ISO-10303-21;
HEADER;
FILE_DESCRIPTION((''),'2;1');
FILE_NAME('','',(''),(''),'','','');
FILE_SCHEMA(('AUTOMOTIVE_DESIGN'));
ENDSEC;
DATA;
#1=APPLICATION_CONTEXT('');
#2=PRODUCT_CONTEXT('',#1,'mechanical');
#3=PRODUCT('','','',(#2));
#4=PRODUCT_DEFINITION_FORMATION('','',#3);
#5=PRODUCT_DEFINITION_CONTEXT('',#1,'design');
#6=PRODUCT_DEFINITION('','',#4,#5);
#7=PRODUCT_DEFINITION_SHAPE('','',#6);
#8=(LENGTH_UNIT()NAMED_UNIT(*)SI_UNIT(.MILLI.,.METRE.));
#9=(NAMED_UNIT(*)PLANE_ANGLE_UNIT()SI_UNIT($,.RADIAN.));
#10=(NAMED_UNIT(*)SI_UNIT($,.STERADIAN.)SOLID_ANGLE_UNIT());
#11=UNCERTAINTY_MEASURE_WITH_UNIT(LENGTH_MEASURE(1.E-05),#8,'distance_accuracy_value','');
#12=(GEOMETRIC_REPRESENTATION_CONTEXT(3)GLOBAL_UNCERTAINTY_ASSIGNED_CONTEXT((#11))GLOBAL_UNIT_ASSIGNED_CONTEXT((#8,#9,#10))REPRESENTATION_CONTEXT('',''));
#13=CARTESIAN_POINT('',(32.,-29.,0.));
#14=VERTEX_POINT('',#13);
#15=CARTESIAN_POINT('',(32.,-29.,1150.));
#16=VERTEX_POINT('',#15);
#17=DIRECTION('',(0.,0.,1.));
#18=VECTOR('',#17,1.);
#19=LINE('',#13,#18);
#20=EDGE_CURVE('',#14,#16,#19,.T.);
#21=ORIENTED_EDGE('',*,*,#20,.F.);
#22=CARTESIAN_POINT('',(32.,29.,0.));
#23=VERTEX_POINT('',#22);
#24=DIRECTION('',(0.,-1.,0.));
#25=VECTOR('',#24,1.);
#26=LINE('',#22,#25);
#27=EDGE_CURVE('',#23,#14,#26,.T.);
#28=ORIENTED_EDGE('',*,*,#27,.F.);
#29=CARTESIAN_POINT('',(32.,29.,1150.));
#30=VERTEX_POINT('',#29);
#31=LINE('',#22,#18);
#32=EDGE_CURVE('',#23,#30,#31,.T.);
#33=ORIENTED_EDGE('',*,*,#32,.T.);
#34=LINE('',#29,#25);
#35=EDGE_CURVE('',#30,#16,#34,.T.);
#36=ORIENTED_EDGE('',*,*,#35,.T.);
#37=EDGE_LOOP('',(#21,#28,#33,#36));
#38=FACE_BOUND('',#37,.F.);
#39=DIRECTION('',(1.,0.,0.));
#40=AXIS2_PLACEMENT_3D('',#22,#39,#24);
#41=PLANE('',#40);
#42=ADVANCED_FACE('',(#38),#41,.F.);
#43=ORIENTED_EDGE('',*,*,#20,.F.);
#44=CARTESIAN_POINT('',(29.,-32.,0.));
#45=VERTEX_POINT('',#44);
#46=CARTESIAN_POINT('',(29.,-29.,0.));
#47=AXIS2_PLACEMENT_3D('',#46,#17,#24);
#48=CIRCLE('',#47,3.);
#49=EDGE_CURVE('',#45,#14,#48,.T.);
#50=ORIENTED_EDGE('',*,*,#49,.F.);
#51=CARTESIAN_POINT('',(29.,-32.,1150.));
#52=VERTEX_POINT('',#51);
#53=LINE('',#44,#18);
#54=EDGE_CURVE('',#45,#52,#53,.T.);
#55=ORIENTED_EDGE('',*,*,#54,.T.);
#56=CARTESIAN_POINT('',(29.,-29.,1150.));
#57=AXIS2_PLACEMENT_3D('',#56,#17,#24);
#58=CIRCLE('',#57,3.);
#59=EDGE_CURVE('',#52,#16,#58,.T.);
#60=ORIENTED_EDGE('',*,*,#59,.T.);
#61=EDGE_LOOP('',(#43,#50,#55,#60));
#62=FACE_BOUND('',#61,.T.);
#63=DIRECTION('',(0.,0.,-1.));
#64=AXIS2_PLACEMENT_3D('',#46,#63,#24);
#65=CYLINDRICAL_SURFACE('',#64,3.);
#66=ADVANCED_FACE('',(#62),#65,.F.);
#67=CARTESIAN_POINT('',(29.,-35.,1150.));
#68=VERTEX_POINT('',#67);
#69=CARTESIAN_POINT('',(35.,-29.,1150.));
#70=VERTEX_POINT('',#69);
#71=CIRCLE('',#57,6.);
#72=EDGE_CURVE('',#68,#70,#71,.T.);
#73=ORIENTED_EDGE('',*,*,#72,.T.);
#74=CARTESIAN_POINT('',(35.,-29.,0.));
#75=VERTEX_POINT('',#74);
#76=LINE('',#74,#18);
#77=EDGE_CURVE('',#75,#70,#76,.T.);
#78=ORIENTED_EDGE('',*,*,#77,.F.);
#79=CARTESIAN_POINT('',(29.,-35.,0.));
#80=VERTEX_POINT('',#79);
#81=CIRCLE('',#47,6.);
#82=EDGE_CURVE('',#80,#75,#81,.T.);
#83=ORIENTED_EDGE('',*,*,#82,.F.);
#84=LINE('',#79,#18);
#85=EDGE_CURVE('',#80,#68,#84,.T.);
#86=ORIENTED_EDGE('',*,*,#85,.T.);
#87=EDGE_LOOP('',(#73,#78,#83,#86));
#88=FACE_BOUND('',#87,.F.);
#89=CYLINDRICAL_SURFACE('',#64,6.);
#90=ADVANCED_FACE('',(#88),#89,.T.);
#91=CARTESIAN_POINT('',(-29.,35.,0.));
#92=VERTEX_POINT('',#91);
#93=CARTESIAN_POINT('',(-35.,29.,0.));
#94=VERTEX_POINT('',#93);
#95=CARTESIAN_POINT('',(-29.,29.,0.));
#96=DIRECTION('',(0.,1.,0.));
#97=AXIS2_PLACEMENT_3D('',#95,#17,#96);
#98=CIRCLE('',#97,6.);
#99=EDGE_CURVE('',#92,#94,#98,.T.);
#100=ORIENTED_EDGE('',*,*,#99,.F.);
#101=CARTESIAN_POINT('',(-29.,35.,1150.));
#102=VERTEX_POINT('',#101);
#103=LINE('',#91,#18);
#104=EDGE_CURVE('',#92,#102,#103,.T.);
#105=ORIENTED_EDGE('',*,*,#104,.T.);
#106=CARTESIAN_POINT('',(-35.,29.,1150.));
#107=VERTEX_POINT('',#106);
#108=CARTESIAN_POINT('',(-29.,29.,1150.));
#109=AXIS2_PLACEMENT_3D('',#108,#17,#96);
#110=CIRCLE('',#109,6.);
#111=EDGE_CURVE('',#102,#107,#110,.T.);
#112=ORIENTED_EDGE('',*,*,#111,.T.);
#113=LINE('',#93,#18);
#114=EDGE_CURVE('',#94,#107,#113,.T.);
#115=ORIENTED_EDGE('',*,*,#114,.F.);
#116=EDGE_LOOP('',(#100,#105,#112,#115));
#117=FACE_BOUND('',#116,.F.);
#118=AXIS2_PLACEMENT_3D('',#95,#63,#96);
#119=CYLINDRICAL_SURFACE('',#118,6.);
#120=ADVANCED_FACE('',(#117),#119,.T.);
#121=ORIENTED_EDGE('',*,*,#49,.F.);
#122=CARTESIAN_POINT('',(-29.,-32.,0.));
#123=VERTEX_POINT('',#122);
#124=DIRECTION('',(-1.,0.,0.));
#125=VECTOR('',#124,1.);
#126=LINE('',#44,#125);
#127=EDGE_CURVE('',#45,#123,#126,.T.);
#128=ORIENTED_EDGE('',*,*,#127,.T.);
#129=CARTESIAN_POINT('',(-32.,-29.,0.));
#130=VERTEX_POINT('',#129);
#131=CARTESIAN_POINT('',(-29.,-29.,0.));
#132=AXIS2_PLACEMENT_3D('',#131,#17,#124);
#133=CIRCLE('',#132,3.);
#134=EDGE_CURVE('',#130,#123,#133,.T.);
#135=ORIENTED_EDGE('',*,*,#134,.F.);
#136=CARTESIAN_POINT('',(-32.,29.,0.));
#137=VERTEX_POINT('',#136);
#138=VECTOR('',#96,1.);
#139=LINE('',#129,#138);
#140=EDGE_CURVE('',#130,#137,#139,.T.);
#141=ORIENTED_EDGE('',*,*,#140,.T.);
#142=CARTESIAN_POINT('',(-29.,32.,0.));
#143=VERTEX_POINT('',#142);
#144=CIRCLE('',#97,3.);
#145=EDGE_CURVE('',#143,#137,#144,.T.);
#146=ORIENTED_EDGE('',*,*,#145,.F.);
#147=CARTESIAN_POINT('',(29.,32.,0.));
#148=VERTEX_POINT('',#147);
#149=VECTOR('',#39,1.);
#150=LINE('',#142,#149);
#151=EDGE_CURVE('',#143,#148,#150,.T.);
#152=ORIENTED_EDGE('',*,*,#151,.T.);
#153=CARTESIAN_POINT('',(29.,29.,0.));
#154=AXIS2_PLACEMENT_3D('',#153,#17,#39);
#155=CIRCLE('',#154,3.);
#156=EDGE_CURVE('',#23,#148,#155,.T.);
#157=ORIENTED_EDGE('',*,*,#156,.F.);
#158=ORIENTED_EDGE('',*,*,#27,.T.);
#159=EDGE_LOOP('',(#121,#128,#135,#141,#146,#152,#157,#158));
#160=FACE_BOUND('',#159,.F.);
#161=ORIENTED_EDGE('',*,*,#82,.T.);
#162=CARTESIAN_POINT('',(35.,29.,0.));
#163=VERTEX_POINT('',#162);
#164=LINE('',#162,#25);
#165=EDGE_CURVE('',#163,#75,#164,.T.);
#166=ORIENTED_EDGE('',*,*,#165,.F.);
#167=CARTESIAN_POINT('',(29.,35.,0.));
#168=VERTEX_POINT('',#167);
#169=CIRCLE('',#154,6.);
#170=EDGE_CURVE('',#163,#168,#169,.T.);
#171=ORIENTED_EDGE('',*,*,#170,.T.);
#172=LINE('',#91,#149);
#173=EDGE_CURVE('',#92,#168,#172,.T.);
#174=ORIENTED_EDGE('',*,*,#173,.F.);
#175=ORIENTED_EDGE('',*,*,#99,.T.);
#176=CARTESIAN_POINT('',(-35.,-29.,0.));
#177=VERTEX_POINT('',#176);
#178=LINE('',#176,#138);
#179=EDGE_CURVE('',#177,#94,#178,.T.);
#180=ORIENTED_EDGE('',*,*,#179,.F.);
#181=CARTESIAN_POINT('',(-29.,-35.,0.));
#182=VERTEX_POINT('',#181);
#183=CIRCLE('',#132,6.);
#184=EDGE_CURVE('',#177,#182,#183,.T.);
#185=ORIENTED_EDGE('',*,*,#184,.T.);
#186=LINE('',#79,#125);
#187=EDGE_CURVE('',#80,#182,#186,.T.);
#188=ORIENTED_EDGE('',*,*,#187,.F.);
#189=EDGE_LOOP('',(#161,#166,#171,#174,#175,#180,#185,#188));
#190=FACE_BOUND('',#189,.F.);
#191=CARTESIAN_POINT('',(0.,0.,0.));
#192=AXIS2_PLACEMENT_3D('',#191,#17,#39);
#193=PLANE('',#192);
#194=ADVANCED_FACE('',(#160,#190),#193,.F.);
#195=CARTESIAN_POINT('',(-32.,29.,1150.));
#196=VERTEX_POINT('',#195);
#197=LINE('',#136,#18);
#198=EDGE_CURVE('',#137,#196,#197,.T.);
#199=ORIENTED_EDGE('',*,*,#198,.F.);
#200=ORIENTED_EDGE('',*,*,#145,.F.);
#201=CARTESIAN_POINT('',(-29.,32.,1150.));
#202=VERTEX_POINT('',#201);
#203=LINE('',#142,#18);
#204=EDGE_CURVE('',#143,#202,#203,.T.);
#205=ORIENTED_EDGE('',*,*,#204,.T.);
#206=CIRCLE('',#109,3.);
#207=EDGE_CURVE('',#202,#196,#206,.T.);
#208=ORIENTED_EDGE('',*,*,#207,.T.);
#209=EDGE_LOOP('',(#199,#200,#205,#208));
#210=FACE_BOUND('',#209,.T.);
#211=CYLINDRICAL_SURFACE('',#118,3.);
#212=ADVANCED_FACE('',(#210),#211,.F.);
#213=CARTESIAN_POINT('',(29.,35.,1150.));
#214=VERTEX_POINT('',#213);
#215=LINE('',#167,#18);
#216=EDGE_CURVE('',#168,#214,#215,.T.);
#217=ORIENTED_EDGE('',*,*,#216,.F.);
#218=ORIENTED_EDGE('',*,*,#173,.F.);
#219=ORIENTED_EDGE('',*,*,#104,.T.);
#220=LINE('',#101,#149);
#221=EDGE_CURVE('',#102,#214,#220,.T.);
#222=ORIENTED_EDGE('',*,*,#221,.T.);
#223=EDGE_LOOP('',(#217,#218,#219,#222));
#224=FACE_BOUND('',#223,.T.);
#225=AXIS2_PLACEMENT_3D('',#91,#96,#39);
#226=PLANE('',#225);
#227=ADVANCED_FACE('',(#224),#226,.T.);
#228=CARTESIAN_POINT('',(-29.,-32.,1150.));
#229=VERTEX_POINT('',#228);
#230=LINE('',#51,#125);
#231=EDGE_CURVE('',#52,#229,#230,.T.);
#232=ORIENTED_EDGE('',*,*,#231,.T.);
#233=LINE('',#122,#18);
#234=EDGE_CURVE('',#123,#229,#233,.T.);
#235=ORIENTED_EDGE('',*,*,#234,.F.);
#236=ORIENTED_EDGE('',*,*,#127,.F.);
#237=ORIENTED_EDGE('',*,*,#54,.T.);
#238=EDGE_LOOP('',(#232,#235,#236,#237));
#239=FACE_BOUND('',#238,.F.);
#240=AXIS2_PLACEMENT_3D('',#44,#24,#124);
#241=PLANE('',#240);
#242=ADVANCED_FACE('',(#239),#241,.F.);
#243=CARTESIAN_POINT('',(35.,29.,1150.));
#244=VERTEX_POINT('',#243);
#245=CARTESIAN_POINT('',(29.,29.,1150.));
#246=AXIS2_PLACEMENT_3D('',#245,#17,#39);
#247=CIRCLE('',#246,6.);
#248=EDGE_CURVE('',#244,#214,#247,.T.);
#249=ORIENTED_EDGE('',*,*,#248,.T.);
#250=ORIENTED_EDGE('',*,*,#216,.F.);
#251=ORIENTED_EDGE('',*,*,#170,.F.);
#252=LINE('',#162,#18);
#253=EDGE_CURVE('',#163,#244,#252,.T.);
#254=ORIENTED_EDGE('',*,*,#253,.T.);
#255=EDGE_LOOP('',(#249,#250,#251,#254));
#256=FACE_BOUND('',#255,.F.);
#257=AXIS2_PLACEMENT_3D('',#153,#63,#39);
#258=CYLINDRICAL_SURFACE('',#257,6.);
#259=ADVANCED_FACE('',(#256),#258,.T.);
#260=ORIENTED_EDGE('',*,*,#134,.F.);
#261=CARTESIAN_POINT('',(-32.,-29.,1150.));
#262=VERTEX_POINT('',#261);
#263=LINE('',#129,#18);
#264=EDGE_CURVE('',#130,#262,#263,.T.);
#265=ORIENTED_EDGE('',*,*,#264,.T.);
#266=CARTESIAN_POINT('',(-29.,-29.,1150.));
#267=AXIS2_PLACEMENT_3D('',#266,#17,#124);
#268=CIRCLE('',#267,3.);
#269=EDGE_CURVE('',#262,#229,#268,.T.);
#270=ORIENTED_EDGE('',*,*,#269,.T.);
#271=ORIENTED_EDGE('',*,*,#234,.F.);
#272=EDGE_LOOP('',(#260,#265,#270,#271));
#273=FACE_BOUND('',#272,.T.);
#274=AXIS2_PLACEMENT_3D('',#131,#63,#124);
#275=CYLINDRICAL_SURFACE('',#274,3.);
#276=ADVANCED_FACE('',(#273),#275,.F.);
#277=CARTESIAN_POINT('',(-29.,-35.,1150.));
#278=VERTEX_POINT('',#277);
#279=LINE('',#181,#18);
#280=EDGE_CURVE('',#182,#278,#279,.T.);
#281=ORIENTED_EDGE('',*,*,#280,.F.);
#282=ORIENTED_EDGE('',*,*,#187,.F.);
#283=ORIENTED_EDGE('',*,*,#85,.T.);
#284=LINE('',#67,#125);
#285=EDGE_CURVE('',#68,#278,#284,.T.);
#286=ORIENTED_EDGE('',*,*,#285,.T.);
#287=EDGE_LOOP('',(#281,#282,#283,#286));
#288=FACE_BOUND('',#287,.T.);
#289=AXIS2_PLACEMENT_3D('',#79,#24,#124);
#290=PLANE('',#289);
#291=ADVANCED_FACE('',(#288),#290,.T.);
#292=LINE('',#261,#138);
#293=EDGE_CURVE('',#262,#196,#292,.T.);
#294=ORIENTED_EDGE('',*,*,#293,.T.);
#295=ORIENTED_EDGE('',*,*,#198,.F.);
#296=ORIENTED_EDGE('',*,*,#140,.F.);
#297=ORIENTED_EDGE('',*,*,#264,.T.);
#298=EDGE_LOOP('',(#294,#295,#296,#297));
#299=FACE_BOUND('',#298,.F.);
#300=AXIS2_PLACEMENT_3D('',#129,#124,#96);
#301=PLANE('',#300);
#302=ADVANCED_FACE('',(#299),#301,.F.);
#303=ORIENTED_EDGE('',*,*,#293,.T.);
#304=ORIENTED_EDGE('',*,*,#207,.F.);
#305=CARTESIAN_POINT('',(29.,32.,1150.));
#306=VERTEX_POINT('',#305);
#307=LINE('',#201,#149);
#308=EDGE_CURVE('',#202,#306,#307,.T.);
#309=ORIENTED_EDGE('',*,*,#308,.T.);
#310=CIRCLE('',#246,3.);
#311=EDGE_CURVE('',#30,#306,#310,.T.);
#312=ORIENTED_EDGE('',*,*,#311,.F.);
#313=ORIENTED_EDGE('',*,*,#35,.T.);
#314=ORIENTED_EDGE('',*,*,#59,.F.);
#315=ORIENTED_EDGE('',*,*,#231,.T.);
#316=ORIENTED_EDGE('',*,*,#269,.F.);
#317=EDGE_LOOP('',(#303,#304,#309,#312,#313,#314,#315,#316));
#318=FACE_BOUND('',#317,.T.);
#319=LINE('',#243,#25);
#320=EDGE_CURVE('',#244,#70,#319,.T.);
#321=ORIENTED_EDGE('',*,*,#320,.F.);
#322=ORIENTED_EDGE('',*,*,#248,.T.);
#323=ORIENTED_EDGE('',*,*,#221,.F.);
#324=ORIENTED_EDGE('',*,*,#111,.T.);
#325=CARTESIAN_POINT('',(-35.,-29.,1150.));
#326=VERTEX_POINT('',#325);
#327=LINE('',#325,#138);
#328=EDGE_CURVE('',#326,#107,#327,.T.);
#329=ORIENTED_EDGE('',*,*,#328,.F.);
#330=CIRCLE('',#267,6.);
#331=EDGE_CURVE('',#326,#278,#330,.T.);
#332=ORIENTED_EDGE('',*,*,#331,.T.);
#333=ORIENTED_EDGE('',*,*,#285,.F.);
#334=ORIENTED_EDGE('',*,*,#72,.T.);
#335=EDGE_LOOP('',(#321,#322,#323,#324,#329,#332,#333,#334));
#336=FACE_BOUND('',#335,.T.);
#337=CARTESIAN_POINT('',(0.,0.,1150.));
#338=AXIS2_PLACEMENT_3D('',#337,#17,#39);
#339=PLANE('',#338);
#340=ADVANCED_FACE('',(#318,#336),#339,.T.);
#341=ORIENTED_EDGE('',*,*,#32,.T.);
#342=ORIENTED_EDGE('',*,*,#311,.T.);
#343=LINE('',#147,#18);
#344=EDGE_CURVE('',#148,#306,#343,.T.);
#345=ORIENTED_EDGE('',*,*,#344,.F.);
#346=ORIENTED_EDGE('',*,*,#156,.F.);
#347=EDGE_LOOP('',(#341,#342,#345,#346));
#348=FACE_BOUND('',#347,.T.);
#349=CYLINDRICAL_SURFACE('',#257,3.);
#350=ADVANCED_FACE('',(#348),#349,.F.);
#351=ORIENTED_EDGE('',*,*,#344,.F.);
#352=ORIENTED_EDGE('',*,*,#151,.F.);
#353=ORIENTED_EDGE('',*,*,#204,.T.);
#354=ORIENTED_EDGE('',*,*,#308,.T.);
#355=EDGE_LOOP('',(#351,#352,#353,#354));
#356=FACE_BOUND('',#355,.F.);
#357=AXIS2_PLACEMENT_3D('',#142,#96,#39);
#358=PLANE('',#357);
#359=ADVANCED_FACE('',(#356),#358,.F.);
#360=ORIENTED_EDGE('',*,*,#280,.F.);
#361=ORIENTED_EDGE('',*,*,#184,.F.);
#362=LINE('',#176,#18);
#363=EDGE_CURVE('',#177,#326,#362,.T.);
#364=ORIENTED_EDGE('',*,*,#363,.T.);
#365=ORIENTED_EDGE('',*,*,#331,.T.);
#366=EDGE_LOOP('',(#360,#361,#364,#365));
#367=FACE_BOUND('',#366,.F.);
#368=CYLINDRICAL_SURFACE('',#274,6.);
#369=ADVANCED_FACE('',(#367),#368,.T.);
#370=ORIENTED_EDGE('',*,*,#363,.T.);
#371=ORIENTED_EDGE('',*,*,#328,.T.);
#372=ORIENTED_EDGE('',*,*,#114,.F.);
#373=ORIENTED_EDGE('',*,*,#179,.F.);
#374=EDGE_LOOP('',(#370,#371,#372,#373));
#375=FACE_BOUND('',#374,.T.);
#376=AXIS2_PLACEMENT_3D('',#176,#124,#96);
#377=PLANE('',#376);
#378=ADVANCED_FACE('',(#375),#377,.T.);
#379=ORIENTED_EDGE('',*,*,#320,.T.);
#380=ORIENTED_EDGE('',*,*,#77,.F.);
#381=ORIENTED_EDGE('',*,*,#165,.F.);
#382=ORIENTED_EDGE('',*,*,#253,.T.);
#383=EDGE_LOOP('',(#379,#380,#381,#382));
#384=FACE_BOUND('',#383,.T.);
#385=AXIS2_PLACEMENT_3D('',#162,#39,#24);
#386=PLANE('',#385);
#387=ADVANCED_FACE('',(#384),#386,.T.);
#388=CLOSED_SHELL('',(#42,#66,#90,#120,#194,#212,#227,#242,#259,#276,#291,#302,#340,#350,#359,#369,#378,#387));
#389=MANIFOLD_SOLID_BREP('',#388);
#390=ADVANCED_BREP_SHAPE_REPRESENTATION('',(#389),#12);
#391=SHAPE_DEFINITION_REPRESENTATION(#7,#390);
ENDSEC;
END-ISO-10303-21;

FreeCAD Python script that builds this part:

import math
import FreeCAD as App
import Part
import Sketcher

V = App.Vector
Q = App.Units.Quantity

doc = App.newDocument("Part")
params = doc.addObject("Spreadsheet::Sheet", "Params")
for row, (alias, value) in enumerate([
    ("sketch1_radius", "6 mm"),
    ("sketch1_radius2", "3 mm"),
    ("pad1_length", "1150 mm"),
], start=1):
    params.set(f"A{row}", alias)
    params.set(f"B{row}", "=" + value)
    params.setAlias(f"B{row}", alias)

body = doc.addObject("PartDesign::Body", "Body")

# Sketch on XY plane
sketch1 = doc.addObject("Sketcher::SketchObject", "Sketch")
body.addObject(sketch1)
sketch1.AttachmentSupport = (doc.XY_Plane, [""])
sketch1.MapMode = "FlatFace"
sketch1.addGeometry(Part.LineSegment(V(-35, 29, 0), V(-35, -29, 0)), False)
sketch1.addGeometry(Part.ArcOfCircle(Part.Circle(V(-29, -29, 0), V(0, 0, 1), 6), math.radians(180), math.radians(270)), False)
sketch1.addGeometry(Part.LineSegment(V(-29, -35, 0), V(29, -35, 0)), False)
sketch1.addGeometry(Part.ArcOfCircle(Part.Circle(V(29, -29, 0), V(0, 0, 1), 6), math.radians(-90), math.radians(0)), False)
sketch1.addGeometry(Part.LineSegment(V(35, -29, 0), V(35, 29, 0)), False)
sketch1.addGeometry(Part.ArcOfCircle(Part.Circle(V(29, 29, 0), V(0, 0, 1), 6), math.radians(0), math.radians(90)), False)
sketch1.addGeometry(Part.LineSegment(V(29, 35, 0), V(-29, 35, 0)), False)
sketch1.addGeometry(Part.ArcOfCircle(Part.Circle(V(-29, 29, 0), V(0, 0, 1), 6), math.radians(90), math.radians(180)), False)
sketch1.addGeometry(Part.ArcOfCircle(Part.Circle(V(-29, 29, 0), V(0, 0, 1), 3), math.radians(90), math.radians(180)), False)
sketch1.addGeometry(Part.LineSegment(V(-29, 32, 0), V(29, 32, 0)), False)
sketch1.addGeometry(Part.ArcOfCircle(Part.Circle(V(29, 29, 0), V(0, 0, 1), 3), math.radians(0), math.radians(90)), False)
sketch1.addGeometry(Part.LineSegment(V(32, 29, 0), V(32, -29, 0)), False)
sketch1.addGeometry(Part.ArcOfCircle(Part.Circle(V(29, -29, 0), V(0, 0, 1), 3), math.radians(-90), math.radians(0)), False)
sketch1.addGeometry(Part.LineSegment(V(29, -32, 0), V(-29, -32, 0)), False)
sketch1.addGeometry(Part.ArcOfCircle(Part.Circle(V(-29, -29, 0), V(0, 0, 1), 3), math.radians(180), math.radians(270)), False)
sketch1.addGeometry(Part.LineSegment(V(-32, -29, 0), V(-32, 29, 0)), False)
sketch1.addConstraint(Sketcher.Constraint("Tangent", 0, 2, 1, 1))
sketch1.addConstraint(Sketcher.Constraint("Tangent", 1, 2, 2, 1))
sketch1.addConstraint(Sketcher.Constraint("Tangent", 2, 2, 3, 1))
sketch1.addConstraint(Sketcher.Constraint("Tangent", 3, 2, 4, 1))
sketch1.addConstraint(Sketcher.Constraint("Tangent", 4, 2, 5, 1))
sketch1.addConstraint(Sketcher.Constraint("Tangent", 5, 2, 6, 1))
sketch1.addConstraint(Sketcher.Constraint("Tangent", 6, 2, 7, 1))
sketch1.addConstraint(Sketcher.Constraint("Tangent", 7, 2, 0, 1))
sketch1.addConstraint(Sketcher.Constraint("Tangent", 8, 1, 9, 1))
sketch1.addConstraint(Sketcher.Constraint("Tangent", 9, 2, 10, 2))
sketch1.addConstraint(Sketcher.Constraint("Tangent", 10, 1, 11, 1))
sketch1.addConstraint(Sketcher.Constraint("Tangent", 11, 2, 12, 2))
sketch1.addConstraint(Sketcher.Constraint("Tangent", 12, 1, 13, 1))
sketch1.addConstraint(Sketcher.Constraint("Tangent", 13, 2, 14, 2))
sketch1.addConstraint(Sketcher.Constraint("Tangent", 14, 1, 15, 1))
sketch1.addConstraint(Sketcher.Constraint("Tangent", 15, 2, 8, 2))
sketch1.addConstraint(Sketcher.Constraint("Vertical", 0))
sketch1.addConstraint(Sketcher.Constraint("Horizontal", 2))
sketch1.addConstraint(Sketcher.Constraint("Vertical", 4))
sketch1.addConstraint(Sketcher.Constraint("Horizontal", 6))
sketch1.addConstraint(Sketcher.Constraint("Horizontal", 9))
sketch1.addConstraint(Sketcher.Constraint("Vertical", 11))
sketch1.addConstraint(Sketcher.Constraint("Horizontal", 13))
sketch1.addConstraint(Sketcher.Constraint("Vertical", 15))
sketch1.addConstraint(Sketcher.Constraint("Coincident", 8, 3, 7, 3))
sketch1.addConstraint(Sketcher.Constraint("Coincident", 10, 3, 5, 3))
sketch1.addConstraint(Sketcher.Constraint("Coincident", 12, 3, 3, 3))
sketch1.addConstraint(Sketcher.Constraint("Equal", 1, 3))
sketch1.addConstraint(Sketcher.Constraint("Equal", 3, 5))
sketch1.addConstraint(Sketcher.Constraint("Equal", 5, 7))
sketch1.addConstraint(Sketcher.Constraint("Equal", 12, 14))
sketch1.addConstraint(Sketcher.Constraint("Symmetric", 1, 3, 5, 3, -1, 1))
sketch1.addConstraint(Sketcher.Constraint("Equal", 13, 0))
sketch1.addConstraint(Sketcher.Constraint("Radius", 1, Q("6 mm")))
sketch1.addConstraint(Sketcher.Constraint("Radius", 8, Q("3 mm")))
sketch1.addConstraint(Sketcher.Constraint("DistanceX", 0, 2, -1, 1, Q("35 mm")))
sketch1.setExpression("Constraints[33]", "Params.sketch1_radius")
sketch1.setExpression("Constraints[34]", "Params.sketch1_radius2")
pad1 = doc.addObject("PartDesign::Pad", "Pad")
body.addObject(pad1)
pad1.Profile = sketch1
pad1.setExpression("Length", "Params.pad1_length")

doc.recompute()
